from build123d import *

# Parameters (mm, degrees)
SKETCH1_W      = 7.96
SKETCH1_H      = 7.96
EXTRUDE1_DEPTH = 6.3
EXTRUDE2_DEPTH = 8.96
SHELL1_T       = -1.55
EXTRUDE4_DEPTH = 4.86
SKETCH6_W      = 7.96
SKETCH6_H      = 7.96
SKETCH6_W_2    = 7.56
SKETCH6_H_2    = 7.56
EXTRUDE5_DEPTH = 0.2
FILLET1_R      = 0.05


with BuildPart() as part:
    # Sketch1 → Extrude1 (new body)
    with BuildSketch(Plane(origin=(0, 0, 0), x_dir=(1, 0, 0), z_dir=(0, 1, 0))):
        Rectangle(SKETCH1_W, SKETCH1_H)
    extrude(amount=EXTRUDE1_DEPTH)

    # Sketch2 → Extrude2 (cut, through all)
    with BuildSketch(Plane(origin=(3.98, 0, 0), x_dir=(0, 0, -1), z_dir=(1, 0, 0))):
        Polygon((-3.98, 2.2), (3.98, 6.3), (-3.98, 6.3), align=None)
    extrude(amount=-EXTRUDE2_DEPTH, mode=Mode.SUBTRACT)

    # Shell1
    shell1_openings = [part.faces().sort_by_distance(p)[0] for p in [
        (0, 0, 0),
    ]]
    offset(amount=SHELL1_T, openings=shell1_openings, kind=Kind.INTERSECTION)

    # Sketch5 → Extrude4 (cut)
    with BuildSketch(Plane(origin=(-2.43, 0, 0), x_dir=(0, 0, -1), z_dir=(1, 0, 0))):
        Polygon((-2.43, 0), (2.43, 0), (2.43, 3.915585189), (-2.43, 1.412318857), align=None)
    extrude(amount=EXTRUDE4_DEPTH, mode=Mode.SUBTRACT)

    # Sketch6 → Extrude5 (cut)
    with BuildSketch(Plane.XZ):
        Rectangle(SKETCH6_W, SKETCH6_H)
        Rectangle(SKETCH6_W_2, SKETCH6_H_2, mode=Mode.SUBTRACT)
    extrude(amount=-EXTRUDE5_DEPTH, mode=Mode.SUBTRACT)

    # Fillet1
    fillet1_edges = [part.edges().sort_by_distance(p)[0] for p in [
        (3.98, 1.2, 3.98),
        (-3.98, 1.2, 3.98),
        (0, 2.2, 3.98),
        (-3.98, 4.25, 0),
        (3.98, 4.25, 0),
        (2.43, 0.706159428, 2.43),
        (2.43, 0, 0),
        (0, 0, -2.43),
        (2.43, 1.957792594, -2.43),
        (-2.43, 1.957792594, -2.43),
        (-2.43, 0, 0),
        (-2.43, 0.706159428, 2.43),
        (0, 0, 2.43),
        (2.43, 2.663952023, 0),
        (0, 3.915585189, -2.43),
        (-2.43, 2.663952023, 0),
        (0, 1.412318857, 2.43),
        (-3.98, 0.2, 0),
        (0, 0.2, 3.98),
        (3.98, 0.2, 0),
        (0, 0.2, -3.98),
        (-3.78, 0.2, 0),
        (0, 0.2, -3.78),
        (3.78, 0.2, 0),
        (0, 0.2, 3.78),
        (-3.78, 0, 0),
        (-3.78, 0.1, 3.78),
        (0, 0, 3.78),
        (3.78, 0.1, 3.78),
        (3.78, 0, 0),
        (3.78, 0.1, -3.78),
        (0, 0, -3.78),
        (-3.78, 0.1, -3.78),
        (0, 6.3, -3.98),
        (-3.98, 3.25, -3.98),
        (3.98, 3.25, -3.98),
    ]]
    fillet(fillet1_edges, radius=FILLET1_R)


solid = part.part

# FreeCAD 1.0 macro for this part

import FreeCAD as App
import Part
import Sketcher
from FreeCAD import Vector
Q = App.Units.Quantity


def faces_at(feature, points):
    """Names of the faces that lie closest to the given points."""
    faces = feature.Shape.Faces
    near = lambda p: min(range(len(faces)), key=lambda i: faces[i].distToShape(Part.Vertex(*p))[0])
    return sorted({f"Face{near(p) + 1}" for p in points})

doc = App.newDocument("Part")
params = doc.addObject("Spreadsheet::Sheet", "Params")
for row, (alias, value) in enumerate([
    ("sketch1_width", "7.96 mm"),
    ("pad1_length", "6.3 mm"),
    ("sketch2_width", "4.1 mm"),
    ("sketch2_height", "7.96 mm"),
    ("thickness_wall", "1.55 mm"),
    ("sketch3_height", "4.86 mm"),
    ("pocket2_length", "4.86 mm"),
    ("sketch4_width", "7.96 mm"),
    ("sketch4_width2", "7.56 mm"),
    ("pocket3_length", "0.2 mm"),
    ("fillet_radius", "0.05 mm"),
], start=1):
    params.set(f"A{row}", alias)
    params.set(f"B{row}", "=" + value)
    params.setAlias(f"B{row}", alias)

body = doc.addObject("PartDesign::Body", "Body")

# Sketch on XZ plane
sketch1 = body.newObject("Sketcher::SketchObject", "Sketch")
sketch1.AttachmentSupport = (doc.getObject("XZ_Plane"), [""])
sketch1.MapMode = "FlatFace"
sketch1.addGeometry([
    Part.LineSegment(Vector(-3.98, -3.98, 0), Vector(-3.98, 3.98, 0)),
    Part.LineSegment(Vector(-3.98, 3.98, 0), Vector(3.98, 3.98, 0)),
    Part.LineSegment(Vector(3.98, 3.98, 0), Vector(3.98, -3.98, 0)),
    Part.LineSegment(Vector(3.98, -3.98, 0), Vector(-3.98, -3.98, 0)),
], False)
sketch1.addConstraint([
    Sketcher.Constraint("Coincident", 0, 2, 1, 1),
    Sketcher.Constraint("Coincident", 1, 2, 2, 1),
    Sketcher.Constraint("Coincident", 2, 2, 3, 1),
    Sketcher.Constraint("Coincident", 3, 2, 0, 1),
    Sketcher.Constraint("Vertical", 0),
    Sketcher.Constraint("Horizontal", 1),
    Sketcher.Constraint("Vertical", 2),
    Sketcher.Constraint("Horizontal", 3),
    Sketcher.Constraint("Symmetric", 0, 2, 2, 2, -1, 1),
    Sketcher.Constraint("Equal", 3, 0),
    Sketcher.Constraint("DistanceX", 1, 1, 1, 2, Q("7.96 mm")),
])
sketch1.setExpression("Constraints[10]", "Params.sketch1_width")
pad1 = body.newObject("PartDesign::Pad", "Pad")
pad1.Profile = sketch1
pad1.setExpression("Length", "Params.pad1_length")
pad1.Reversed = True

# Sketch on YZ plane
sketch2 = body.newObject("Sketcher::SketchObject", "Sketch001")
sketch2.AttachmentSupport = (doc.getObject("YZ_Plane"), [""])
sketch2.MapMode = "FlatFace"
sketch2.AttachmentOffset = App.Placement(Vector(0, 0, 3.98), App.Rotation())
sketch2.addGeometry([
    Part.LineSegment(Vector(2.2, 3.98, 0), Vector(6.3, -3.98, 0)),
    Part.LineSegment(Vector(6.3, -3.98, 0), Vector(6.3, 3.98, 0)),
    Part.LineSegment(Vector(6.3, 3.98, 0), Vector(2.2, 3.98, 0)),
], False)
sketch2.addConstraint([
    Sketcher.Constraint("Coincident", 0, 2, 1, 1),
    Sketcher.Constraint("Coincident", 1, 2, 2, 1),
    Sketcher.Constraint("Coincident", 2, 2, 0, 1),
    Sketcher.Constraint("Vertical", 1),
    Sketcher.Constraint("Horizontal", 2),
    Sketcher.Constraint("DistanceX", 2, 2, 2, 1, Q("4.1 mm")),
    Sketcher.Constraint("DistanceY", 1, 1, 1, 2, Q("7.96 mm")),
    Sketcher.Constraint("DistanceX", -1, 1, 0, 2, Q("6.3 mm")),
    Sketcher.Constraint("DistanceY", 0, 2, -1, 1, Q("3.98 mm")),
])
sketch2.setExpression("Constraints[5]", "Params.sketch2_width")
sketch2.setExpression("Constraints[6]", "Params.sketch2_height")
pocket1 = body.newObject("PartDesign::Pocket", "Pocket")
pocket1.Profile = sketch2
pocket1.Type = "ThroughAll"
doc.recompute()

thickness = body.newObject("PartDesign::Thickness", "Thickness")
thickness.Base = (pocket1, faces_at(pocket1, [(0, 0, 0)]))
thickness.setExpression("Value", "Params.thickness_wall")
thickness.Reversed = True
thickness.Join = "Intersection"

# Sketch on YZ plane
sketch3 = body.newObject("Sketcher::SketchObject", "Sketch002")
sketch3.AttachmentSupport = (doc.getObject("YZ_Plane"), [""])
sketch3.MapMode = "FlatFace"
sketch3.AttachmentOffset = App.Placement(Vector(0, 0, -2.43), App.Rotation())
sketch3.addGeometry([
    Part.LineSegment(Vector(0, 2.43, 0), Vector(0, -2.43, 0)),
    Part.LineSegment(Vector(0, -2.43, 0), Vector(3.915585, -2.43, 0)),
    Part.LineSegment(Vector(3.915585, -2.43, 0), Vector(1.412319, 2.43, 0)),
    Part.LineSegment(Vector(1.412319, 2.43, 0), Vector(0, 2.43, 0)),
], False)
sketch3.addConstraint([
    Sketcher.Constraint("Coincident", 0, 2, 1, 1),
    Sketcher.Constraint("Coincident", 1, 2, 2, 1),
    Sketcher.Constraint("Coincident", 2, 2, 3, 1),
    Sketcher.Constraint("Coincident", 3, 2, 0, 1),
    Sketcher.Constraint("Vertical", 0),
    Sketcher.Constraint("Horizontal", 1),
    Sketcher.Constraint("Horizontal", 3),
    Sketcher.Constraint("Symmetric", 0, 2, 3, 2, -1, 1),
    Sketcher.Constraint("DistanceY", 0, 2, 0, 1, Q("4.86 mm")),
    Sketcher.Constraint("DistanceX", 3, 2, 3, 1, Q("1.412319 mm")),
    Sketcher.Constraint("DistanceX", 1, 1, 1, 2, Q("3.915585 mm")),
])
sketch3.setExpression("Constraints[8]", "Params.sketch3_height")
pocket2 = body.newObject("PartDesign::Pocket", "Pocket001")
pocket2.Profile = sketch3
pocket2.setExpression("Length", "Params.pocket2_length")
pocket2.Reversed = True

# Sketch on XZ plane
sketch4 = body.newObject("Sketcher::SketchObject", "Sketch003")
sketch4.AttachmentSupport = (doc.getObject("XZ_Plane"), [""])
sketch4.MapMode = "FlatFace"
sketch4.addGeometry([
    Part.LineSegment(Vector(-3.98, 3.98, 0), Vector(-3.98, -3.98, 0)),  # 0
    Part.LineSegment(Vector(-3.98, -3.98, 0), Vector(3.98, -3.98, 0)),  # 1
    Part.LineSegment(Vector(3.98, -3.98, 0), Vector(3.98, 3.98, 0)),  # 2
    Part.LineSegment(Vector(3.98, 3.98, 0), Vector(-3.98, 3.98, 0)),  # 3
    Part.LineSegment(Vector(3.78, -3.78, 0), Vector(-3.78, -3.78, 0)),  # 4
    Part.LineSegment(Vector(-3.78, -3.78, 0), Vector(-3.78, 3.78, 0)),  # 5
    Part.LineSegment(Vector(-3.78, 3.78, 0), Vector(3.78, 3.78, 0)),  # 6
    Part.LineSegment(Vector(3.78, 3.78, 0), Vector(3.78, -3.78, 0)),  # 7
], False)
sketch4.addConstraint([
    Sketcher.Constraint("Coincident", 0, 2, 1, 1),
    Sketcher.Constraint("Coincident", 1, 2, 2, 1),
    Sketcher.Constraint("Coincident", 2, 2, 3, 1),
    Sketcher.Constraint("Coincident", 3, 2, 0, 1),
    Sketcher.Constraint("Coincident", 4, 2, 5, 1),
    Sketcher.Constraint("Coincident", 5, 2, 6, 1),
    Sketcher.Constraint("Coincident", 6, 2, 7, 1),
    Sketcher.Constraint("Coincident", 7, 2, 4, 1),
    Sketcher.Constraint("Vertical", 0),
    Sketcher.Constraint("Horizontal", 1),
    Sketcher.Constraint("Vertical", 2),
    Sketcher.Constraint("Horizontal", 3),
    Sketcher.Constraint("Horizontal", 4),
    Sketcher.Constraint("Vertical", 5),
    Sketcher.Constraint("Horizontal", 6),
    Sketcher.Constraint("Vertical", 7),
    Sketcher.Constraint("Symmetric", 0, 2, 2, 2, -1, 1),
    Sketcher.Constraint("Symmetric", 4, 2, 6, 2, -1, 1),
    Sketcher.Constraint("Equal", 3, 0),
    Sketcher.Constraint("Equal", 6, 5),
    Sketcher.Constraint("DistanceX", 1, 1, 1, 2, Q("7.96 mm")),
    Sketcher.Constraint("DistanceX", 4, 2, 4, 1, Q("7.56 mm")),
])
sketch4.setExpression("Constraints[20]", "Params.sketch4_width")
sketch4.setExpression("Constraints[21]", "Params.sketch4_width2")
pocket3 = body.newObject("PartDesign::Pocket", "Pocket002")
pocket3.Profile = sketch4
pocket3.setExpression("Length", "Params.pocket3_length")
doc.recompute()

fillet = body.newObject("PartDesign::Fillet", "Fillet")
fillet.Base = (pocket3, ["Edge1"])
fillet.UseAllEdges = True
fillet.setExpression("Radius", "Params.fillet_radius")

doc.recompute()
